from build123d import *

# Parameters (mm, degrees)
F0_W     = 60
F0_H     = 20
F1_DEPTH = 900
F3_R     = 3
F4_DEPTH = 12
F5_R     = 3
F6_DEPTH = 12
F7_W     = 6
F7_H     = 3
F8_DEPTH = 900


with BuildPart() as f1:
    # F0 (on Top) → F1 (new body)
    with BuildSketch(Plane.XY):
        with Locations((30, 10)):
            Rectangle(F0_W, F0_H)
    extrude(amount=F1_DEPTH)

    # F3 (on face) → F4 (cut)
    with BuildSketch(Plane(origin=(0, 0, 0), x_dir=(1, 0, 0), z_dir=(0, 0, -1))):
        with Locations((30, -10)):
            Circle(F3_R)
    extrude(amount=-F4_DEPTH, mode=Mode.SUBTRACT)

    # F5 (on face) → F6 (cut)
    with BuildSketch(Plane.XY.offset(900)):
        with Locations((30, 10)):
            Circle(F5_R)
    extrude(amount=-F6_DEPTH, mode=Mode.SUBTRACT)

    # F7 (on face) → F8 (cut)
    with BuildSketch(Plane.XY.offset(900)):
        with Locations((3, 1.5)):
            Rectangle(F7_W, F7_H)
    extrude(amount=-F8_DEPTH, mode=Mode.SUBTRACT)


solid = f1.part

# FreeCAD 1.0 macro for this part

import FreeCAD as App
import Part
import Sketcher
Q = App.Units.Quantity


def add_polygon(sketch, points):
    """Adds a closed chain of lines whose ends are joined by coincident constraints."""
    first, n = sketch.GeometryCount, len(points)
    for a, b in zip(points, points[1:] + points[:1]):
        sketch.addGeometry(Part.LineSegment(App.Vector(*a, 0), App.Vector(*b, 0)), False)
    for i in range(n):
        sketch.addConstraint(Sketcher.Constraint("Coincident", first + i, 2, first + (i + 1) % n, 1))

doc = App.newDocument("Part")
body = doc.addObject("PartDesign::Body", "Body")

sketch1 = body.newObject("Sketcher::SketchObject", "Sketch")
sketch1.AttachmentSupport = (doc.getObject("XY_Plane"), [""])
sketch1.MapMode = "FlatFace"
add_polygon(sketch1, [(0, 20), (0, 0), (60, 0), (60, 20)])
sketch1.addConstraint([
    Sketcher.Constraint("Vertical", 0),
    Sketcher.Constraint("Horizontal", 1),
    Sketcher.Constraint("Vertical", 2),
    Sketcher.Constraint("Horizontal", 3),
    Sketcher.Constraint("Coincident", 0, 2, -1, 1),
    Sketcher.Constraint("DistanceX", 1, 1, 1, 2, Q("60 mm")),
    Sketcher.Constraint("DistanceY", 0, 2, 0, 1, Q("20 mm")),
])
pad1 = body.newObject("PartDesign::Pad", "Pad")
pad1.Profile = sketch1
pad1.Length = 900

sketch2 = body.newObject("Sketcher::SketchObject", "Sketch001")
sketch2.AttachmentSupport = (doc.getObject("XY_Plane"), [""])
sketch2.MapMode = "FlatFace"
sketch2.addGeometry(Part.Circle(App.Vector(30, 10, 0), App.Vector(0, 0, 1), 3), False)
sketch2.addConstraint([
    Sketcher.Constraint("Diameter", 0, Q("6 mm")),
    Sketcher.Constraint("DistanceX", -1, 1, 0, 3, Q("30 mm")),
    Sketcher.Constraint("DistanceY", -1, 1, 0, 3, Q("10 mm")),
])
pocket1 = body.newObject("PartDesign::Pocket", "Pocket")
pocket1.Profile = sketch2
pocket1.Length = 12
pocket1.Reversed = True

sketch3 = body.newObject("Sketcher::SketchObject", "Sketch002")
sketch3.AttachmentSupport = (doc.getObject("XY_Plane"), [""])
sketch3.MapMode = "FlatFace"
sketch3.AttachmentOffset = App.Placement(App.Vector(0, 0, 900), App.Rotation())
sketch3.addGeometry(Part.Circle(App.Vector(30, 10, 0), App.Vector(0, 0, 1), 3), False)
sketch3.addConstraint([
    Sketcher.Constraint("Diameter", 0, Q("6 mm")),
    Sketcher.Constraint("DistanceX", -1, 1, 0, 3, Q("30 mm")),
    Sketcher.Constraint("DistanceY", -1, 1, 0, 3, Q("10 mm")),
])
pocket2 = body.newObject("PartDesign::Pocket", "Pocket001")
pocket2.Profile = sketch3
pocket2.Length = 12

sketch4 = body.newObject("Sketcher::SketchObject", "Sketch003")
sketch4.AttachmentSupport = (doc.getObject("XY_Plane"), [""])
sketch4.MapMode = "FlatFace"
sketch4.AttachmentOffset = App.Placement(App.Vector(0, 0, 900), App.Rotation())
add_polygon(sketch4, [(0, 3), (0, 0), (6, 0), (6, 3)])
sketch4.addConstraint([
    Sketcher.Constraint("Vertical", 0),
    Sketcher.Constraint("Horizontal", 1),
    Sketcher.Constraint("Vertical", 2),
    Sketcher.Constraint("Horizontal", 3),
    Sketcher.Constraint("Coincident", 0, 2, -1, 1),
    Sketcher.Constraint("DistanceX", 1, 1, 1, 2, Q("6 mm")),
    Sketcher.Constraint("DistanceY", 0, 2, 0, 1, Q("3 mm")),
])
pocket3 = body.newObject("PartDesign::Pocket", "Pocket002")
pocket3.Profile = sketch4
pocket3.Length = 900

doc.recompute()
